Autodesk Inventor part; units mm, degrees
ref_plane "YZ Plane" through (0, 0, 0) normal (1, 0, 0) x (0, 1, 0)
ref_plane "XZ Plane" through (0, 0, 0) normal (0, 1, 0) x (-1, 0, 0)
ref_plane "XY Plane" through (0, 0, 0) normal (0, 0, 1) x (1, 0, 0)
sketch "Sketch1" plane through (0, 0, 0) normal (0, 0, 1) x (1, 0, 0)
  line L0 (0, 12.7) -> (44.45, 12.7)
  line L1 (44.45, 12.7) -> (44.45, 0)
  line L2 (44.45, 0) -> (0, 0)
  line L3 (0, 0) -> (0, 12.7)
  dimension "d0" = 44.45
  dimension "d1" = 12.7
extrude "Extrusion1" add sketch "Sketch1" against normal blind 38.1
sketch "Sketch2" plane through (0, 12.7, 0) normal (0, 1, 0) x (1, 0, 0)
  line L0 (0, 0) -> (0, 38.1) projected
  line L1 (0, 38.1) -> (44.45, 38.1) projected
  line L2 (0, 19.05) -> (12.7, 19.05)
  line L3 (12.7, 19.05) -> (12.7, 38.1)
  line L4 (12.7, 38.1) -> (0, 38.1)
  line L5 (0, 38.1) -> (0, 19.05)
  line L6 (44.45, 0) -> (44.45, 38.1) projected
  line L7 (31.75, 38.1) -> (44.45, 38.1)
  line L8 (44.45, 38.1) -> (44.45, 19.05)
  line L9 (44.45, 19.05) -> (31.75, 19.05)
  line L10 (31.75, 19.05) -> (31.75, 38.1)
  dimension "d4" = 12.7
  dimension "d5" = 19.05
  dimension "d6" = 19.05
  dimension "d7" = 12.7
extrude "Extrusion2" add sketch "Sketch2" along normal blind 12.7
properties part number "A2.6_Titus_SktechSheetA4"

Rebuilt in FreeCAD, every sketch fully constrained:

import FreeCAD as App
import Part
import Sketcher

V = App.Vector
Q = App.Units.Quantity

doc = App.newDocument("Part")
params = doc.addObject("Spreadsheet::Sheet", "Params")
for row, (alias, value) in enumerate([
    ("sketch1_height", "0.5 in"),
    ("sketch1_width", "1.75 in"),
    ("pad1_length", "1.5 in"),
    ("sketch2_width", "0.5 in"),
    ("sketch2_height", "0.75 in"),
    ("pad2_length", "0.5 in"),
], start=1):
    params.set(f"A{row}", alias)
    params.set(f"B{row}", "=" + value)
    params.setAlias(f"B{row}", alias)

body = doc.addObject("PartDesign::Body", "Body")

# Sketch on XY plane
sketch1 = body.newObject("Sketcher::SketchObject", "Sketch")
sketch1.AttachmentSupport = (doc.getObject("XY_Plane"), [""])
sketch1.MapMode = "FlatFace"
sketch1.addGeometry(Part.LineSegment(V(44.45, 12.7, 0), V(0, 12.7, 0)), False)
sketch1.addGeometry(Part.LineSegment(V(0, 12.7, 0), V(0, 0, 0)), False)
sketch1.addGeometry(Part.LineSegment(V(0, 0, 0), V(44.45, 0, 0)), False)
sketch1.addGeometry(Part.LineSegment(V(44.45, 0, 0), V(44.45, 12.7, 0)), False)
sketch1.addConstraint(Sketcher.Constraint("Coincident", 0, 2, 1, 1))
sketch1.addConstraint(Sketcher.Constraint("Coincident", 1, 2, 2, 1))
sketch1.addConstraint(Sketcher.Constraint("Coincident", 2, 2, 3, 1))
sketch1.addConstraint(Sketcher.Constraint("Coincident", 3, 2, 0, 1))
sketch1.addConstraint(Sketcher.Constraint("Horizontal", 0))
sketch1.addConstraint(Sketcher.Constraint("Vertical", 1))
sketch1.addConstraint(Sketcher.Constraint("Horizontal", 2))
sketch1.addConstraint(Sketcher.Constraint("Vertical", 3))
sketch1.addConstraint(Sketcher.Constraint("Coincident", 1, 2, -1, 1))
sketch1.addConstraint(Sketcher.Constraint("DistanceY", 1, 2, 1, 1, Q("0.5 in")))
sketch1.addConstraint(Sketcher.Constraint("DistanceX", 0, 2, 0, 1, Q("1.75 in")))
sketch1.setExpression("Constraints[9]", "Params.sketch1_height")
sketch1.setExpression("Constraints[10]", "Params.sketch1_width")
pad1 = body.newObject("PartDesign::Pad", "Pad")
pad1.Profile = sketch1
pad1.setExpression("Length", "Params.pad1_length")
pad1.Reversed = True

# Sketch on XZ plane
sketch2 = body.newObject("Sketcher::SketchObject", "Sketch001")
sketch2.AttachmentSupport = (doc.getObject("XZ_Plane"), [""])
sketch2.MapMode = "FlatFace"
sketch2.AttachmentOffset = App.Placement(V(0, 0, -0.5 * 25.4), App.Rotation())
sketch2.addGeometry(Part.LineSegment(V(44.45, -38.1, 0), V(31.75, -38.1, 0)), False)
sketch2.addGeometry(Part.LineSegment(V(31.75, -38.1, 0), V(31.75, -19.05, 0)), False)
sketch2.addGeometry(Part.LineSegment(V(31.75, -19.05, 0), V(44.45, -19.05, 0)), False)
sketch2.addGeometry(Part.LineSegment(V(44.45, -19.05, 0), V(44.45, -38.1, 0)), False)
sketch2.addGeometry(Part.LineSegment(V(0, -38.1, 0), V(0, -19.05, 0)), False)
sketch2.addGeometry(Part.LineSegment(V(0, -19.05, 0), V(12.7, -19.05, 0)), False)
sketch2.addGeometry(Part.LineSegment(V(12.7, -19.05, 0), V(12.7, -38.1, 0)), False)
sketch2.addGeometry(Part.LineSegment(V(12.7, -38.1, 0), V(0, -38.1, 0)), False)
sketch2.addConstraint(Sketcher.Constraint("Coincident", 0, 2, 1, 1))
sketch2.addConstraint(Sketcher.Constraint("Coincident", 1, 2, 2, 1))
sketch2.addConstraint(Sketcher.Constraint("Coincident", 2, 2, 3, 1))
sketch2.addConstraint(Sketcher.Constraint("Coincident", 3, 2, 0, 1))
sketch2.addConstraint(Sketcher.Constraint("Coincident", 4, 2, 5, 1))
sketch2.addConstraint(Sketcher.Constraint("Coincident", 5, 2, 6, 1))
sketch2.addConstraint(Sketcher.Constraint("Coincident", 6, 2, 7, 1))
sketch2.addConstraint(Sketcher.Constraint("Coincident", 7, 2, 4, 1))
sketch2.addConstraint(Sketcher.Constraint("Horizontal", 0))
sketch2.addConstraint(Sketcher.Constraint("Vertical", 1))
sketch2.addConstraint(Sketcher.Constraint("Horizontal", 2))
sketch2.addConstraint(Sketcher.Constraint("Vertical", 3))
sketch2.addConstraint(Sketcher.Constraint("Vertical", 4))
sketch2.addConstraint(Sketcher.Constraint("Horizontal", 5))
sketch2.addConstraint(Sketcher.Constraint("Vertical", 6))
sketch2.addConstraint(Sketcher.Constraint("Horizontal", 7))
sketch2.addConstraint(Sketcher.Constraint("PointOnObject", 4, 2, -2))
sketch2.addConstraint(Sketcher.Constraint("Horizontal", 2, 2, 4, 2))
sketch2.addConstraint(Sketcher.Constraint("Horizontal", 3, 2, 6, 2))
sketch2.addConstraint(Sketcher.Constraint("Equal", 2, 5))
sketch2.addConstraint(Sketcher.Constraint("DistanceX", 0, 2, 0, 1, Q("0.5 in")))
sketch2.addConstraint(Sketcher.Constraint("DistanceY", 1, 1, 1, 2, Q("0.75 in")))
sketch2.addConstraint(Sketcher.Constraint("DistanceY", 1, 2, -1, 1, Q("0.75 in")))
sketch2.addConstraint(Sketcher.Constraint("DistanceX", 5, 2, 1, 2, Q("0.75 in")))
sketch2.setExpression("Constraints[20]", "Params.sketch2_width")
sketch2.setExpression("Constraints[21]", "Params.sketch2_height")
pad2 = body.newObject("PartDesign::Pad", "Pad001")
pad2.Profile = sketch2
pad2.setExpression("Length", "Params.pad2_length")
pad2.Reversed = True

doc.recompute()
